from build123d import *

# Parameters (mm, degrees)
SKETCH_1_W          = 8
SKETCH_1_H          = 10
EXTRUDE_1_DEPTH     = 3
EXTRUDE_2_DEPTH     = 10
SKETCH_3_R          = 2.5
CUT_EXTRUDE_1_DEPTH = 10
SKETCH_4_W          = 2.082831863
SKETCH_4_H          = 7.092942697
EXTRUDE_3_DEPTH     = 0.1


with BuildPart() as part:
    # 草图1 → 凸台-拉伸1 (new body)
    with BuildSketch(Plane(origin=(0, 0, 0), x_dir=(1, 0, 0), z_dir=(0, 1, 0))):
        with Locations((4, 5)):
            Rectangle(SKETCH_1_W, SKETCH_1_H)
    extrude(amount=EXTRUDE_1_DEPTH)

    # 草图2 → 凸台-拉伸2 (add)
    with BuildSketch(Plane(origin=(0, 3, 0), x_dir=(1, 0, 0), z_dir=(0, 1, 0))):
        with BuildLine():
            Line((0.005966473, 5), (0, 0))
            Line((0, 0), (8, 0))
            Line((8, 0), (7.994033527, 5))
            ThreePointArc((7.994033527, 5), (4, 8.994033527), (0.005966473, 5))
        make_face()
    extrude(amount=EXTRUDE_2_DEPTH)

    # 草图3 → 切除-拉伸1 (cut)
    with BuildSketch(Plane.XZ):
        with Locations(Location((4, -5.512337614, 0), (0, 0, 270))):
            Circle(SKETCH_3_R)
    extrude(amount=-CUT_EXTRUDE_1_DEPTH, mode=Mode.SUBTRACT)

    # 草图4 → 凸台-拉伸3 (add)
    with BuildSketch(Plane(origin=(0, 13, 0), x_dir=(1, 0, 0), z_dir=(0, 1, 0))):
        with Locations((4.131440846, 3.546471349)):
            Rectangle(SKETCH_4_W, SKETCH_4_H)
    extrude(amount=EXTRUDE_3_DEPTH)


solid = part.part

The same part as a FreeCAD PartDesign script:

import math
import FreeCAD as App
import Part
import Sketcher
Q = App.Units.Quantity

doc = App.newDocument("Part")
params = doc.addObject("Spreadsheet::Sheet", "Params")
for row, (alias, value) in enumerate([
    ("sketch1_width", "8 mm"),
    ("sketch1_height", "10 mm"),
    ("pad1_length", "3 mm"),
    ("sketch2_width", "8 mm"),
    ("pad2_length", "10 mm"),
    ("sketch3_diameter", "5 mm"),
    ("pocket1_length", "10 mm"),
    ("pad3_length", "0.1 mm"),
], start=1):
    params.set(f"A{row}", alias)
    params.set(f"B{row}", "=" + value)
    params.setAlias(f"B{row}", alias)

body = doc.addObject("PartDesign::Body", "Body")

sketch1 = body.newObject("Sketcher::SketchObject", "Sketch")
sketch1.AttachmentSupport = (doc.getObject("XZ_Plane"), [""])
sketch1.MapMode = "FlatFace"
sketch1.addGeometry(Part.LineSegment(App.Vector(0, -10, 0), App.Vector(0, 0, 0)), False)
sketch1.addGeometry(Part.LineSegment(App.Vector(0, 0, 0), App.Vector(8, 0, 0)), False)
sketch1.addGeometry(Part.LineSegment(App.Vector(8, 0, 0), App.Vector(8, -10, 0)), False)
sketch1.addGeometry(Part.LineSegment(App.Vector(8, -10, 0), App.Vector(0, -10, 0)), False)
sketch1.addConstraint(Sketcher.Constraint("Coincident", 0, 2, 1, 1))
sketch1.addConstraint(Sketcher.Constraint("Coincident", 1, 2, 2, 1))
sketch1.addConstraint(Sketcher.Constraint("Coincident", 2, 2, 3, 1))
sketch1.addConstraint(Sketcher.Constraint("Coincident", 3, 2, 0, 1))
sketch1.addConstraint(Sketcher.Constraint("Vertical", 0))
sketch1.addConstraint(Sketcher.Constraint("Horizontal", 1))
sketch1.addConstraint(Sketcher.Constraint("Vertical", 2))
sketch1.addConstraint(Sketcher.Constraint("Horizontal", 3))
sketch1.addConstraint(Sketcher.Constraint("Coincident", 0, 2, -1, 1))
sketch1.addConstraint(Sketcher.Constraint("DistanceX", 1, 1, 1, 2, Q("8 mm")))
sketch1.addConstraint(Sketcher.Constraint("DistanceY", 0, 1, 0, 2, Q("10 mm")))
sketch1.setExpression("Constraints[9]", "Params.sketch1_width")
sketch1.setExpression("Constraints[10]", "Params.sketch1_height")
pad1 = body.newObject("PartDesign::Pad", "Pad")
pad1.Profile = sketch1
pad1.setExpression("Length", "Params.pad1_length")
pad1.Reversed = True

sketch2 = body.newObject("Sketcher::SketchObject", "Sketch001")
sketch2.AttachmentSupport = (doc.getObject("XZ_Plane"), [""])
sketch2.MapMode = "FlatFace"
sketch2.AttachmentOffset = App.Placement(App.Vector(0, 0, -3), App.Rotation())
sketch2.addGeometry(Part.LineSegment(App.Vector(0, -5, 0), App.Vector(0, 0, 0)), False)
sketch2.addGeometry(Part.LineSegment(App.Vector(0, 0, 0), App.Vector(8, 0, 0)), False)
sketch2.addGeometry(Part.LineSegment(App.Vector(8, 0, 0), App.Vector(8, -5, 0)), False)
sketch2.addGeometry(Part.ArcOfCircle(Part.Circle(App.Vector(4, -5, 0), App.Vector(0, 0, 1), 4), math.radians(180), math.radians(360)), False)
sketch2.addConstraint(Sketcher.Constraint("Coincident", 0, 2, 1, 1))
sketch2.addConstraint(Sketcher.Constraint("Coincident", 1, 2, 2, 1))
sketch2.addConstraint(Sketcher.Constraint("Coincident", 2, 2, 3, 2))
sketch2.addConstraint(Sketcher.Constraint("Coincident", 3, 1, 0, 1))
sketch2.addConstraint(Sketcher.Constraint("Horizontal", 1))
sketch2.addConstraint(Sketcher.Constraint("Coincident", 0, 2, -1, 1))
sketch2.addConstraint(Sketcher.Constraint("Horizontal", 3, 3, 2, 2))
sketch2.addConstraint(Sketcher.Constraint("Horizontal", 2, 2, 3, 1))
sketch2.addConstraint(Sketcher.Constraint("DistanceX", 1, 1, 1, 2, Q("8 mm")))
sketch2.addConstraint(Sketcher.Constraint("DistanceX", -1, 1, 3, 3, Q("4 mm")))
sketch2.addConstraint(Sketcher.Constraint("DistanceY", 3, 3, -1, 1, Q("5 mm")))
sketch2.addConstraint(Sketcher.Constraint("Radius", 3, Q("3.994034 mm")))
sketch2.setExpression("Constraints[8]", "Params.sketch2_width")
pad2 = body.newObject("PartDesign::Pad", "Pad001")
pad2.Profile = sketch2
pad2.setExpression("Length", "Params.pad2_length")
pad2.Reversed = True

sketch3 = body.newObject("Sketcher::SketchObject", "Sketch002")
sketch3.AttachmentSupport = (doc.getObject("XZ_Plane"), [""])
sketch3.MapMode = "FlatFace"
sketch3.addGeometry(Part.Circle(App.Vector(4, -5.5, 0), App.Vector(0, 0, 1), 2.5), False)
sketch3.addConstraint(Sketcher.Constraint("Diameter", 0, Q("5 mm")))
sketch3.addConstraint(Sketcher.Constraint("DistanceX", -1, 1, 0, 3, Q("4 mm")))
sketch3.addConstraint(Sketcher.Constraint("DistanceY", 0, 3, -1, 1, Q("5.512338 mm")))
sketch3.setExpression("Constraints[0]", "Params.sketch3_diameter")
pocket1 = body.newObject("PartDesign::Pocket", "Pocket")
pocket1.Profile = sketch3
pocket1.setExpression("Length", "Params.pocket1_length")

sketch4 = body.newObject("Sketcher::SketchObject", "Sketch003")
sketch4.AttachmentSupport = (doc.getObject("XZ_Plane"), [""])
sketch4.MapMode = "FlatFace"
sketch4.AttachmentOffset = App.Placement(App.Vector(0, 0, -13), App.Rotation())
sketch4.addGeometry(Part.LineSegment(App.Vector(3.1, -7.1, 0), App.Vector(3.1, 0, 0)), False)
sketch4.addGeometry(Part.LineSegment(App.Vector(3.1, 0, 0), App.Vector(5.2, 0, 0)), False)
sketch4.addGeometry(Part.LineSegment(App.Vector(5.2, 0, 0), App.Vector(5.2, -7.1, 0)), False)
sketch4.addGeometry(Part.LineSegment(App.Vector(5.2, -7.1, 0), App.Vector(3.1, -7.1, 0)), False)
sketch4.addConstraint(Sketcher.Constraint("Coincident", 0, 2, 1, 1))
sketch4.addConstraint(Sketcher.Constraint("Coincident", 1, 2, 2, 1))
sketch4.addConstraint(Sketcher.Constraint("Coincident", 2, 2, 3, 1))
sketch4.addConstraint(Sketcher.Constraint("Coincident", 3, 2, 0, 1))
sketch4.addConstraint(Sketcher.Constraint("Vertical", 0))
sketch4.addConstraint(Sketcher.Constraint("Horizontal", 1))
sketch4.addConstraint(Sketcher.Constraint("Vertical", 2))
sketch4.addConstraint(Sketcher.Constraint("Horizontal", 3))
sketch4.addConstraint(Sketcher.Constraint("PointOnObject", 0, 2, -1))
sketch4.addConstraint(Sketcher.Constraint("DistanceX", 1, 1, 1, 2, Q("2.082832 mm")))
sketch4.addConstraint(Sketcher.Constraint("DistanceY", 0, 1, 0, 2, Q("7.092943 mm")))
sketch4.addConstraint(Sketcher.Constraint("DistanceX", -1, 1, 0, 2, Q("3.090025 mm")))
pad3 = body.newObject("PartDesign::Pad", "Pad002")
pad3.Profile = sketch4
pad3.setExpression("Length", "Params.pad3_length")
pad3.Reversed = True

doc.recompute()
